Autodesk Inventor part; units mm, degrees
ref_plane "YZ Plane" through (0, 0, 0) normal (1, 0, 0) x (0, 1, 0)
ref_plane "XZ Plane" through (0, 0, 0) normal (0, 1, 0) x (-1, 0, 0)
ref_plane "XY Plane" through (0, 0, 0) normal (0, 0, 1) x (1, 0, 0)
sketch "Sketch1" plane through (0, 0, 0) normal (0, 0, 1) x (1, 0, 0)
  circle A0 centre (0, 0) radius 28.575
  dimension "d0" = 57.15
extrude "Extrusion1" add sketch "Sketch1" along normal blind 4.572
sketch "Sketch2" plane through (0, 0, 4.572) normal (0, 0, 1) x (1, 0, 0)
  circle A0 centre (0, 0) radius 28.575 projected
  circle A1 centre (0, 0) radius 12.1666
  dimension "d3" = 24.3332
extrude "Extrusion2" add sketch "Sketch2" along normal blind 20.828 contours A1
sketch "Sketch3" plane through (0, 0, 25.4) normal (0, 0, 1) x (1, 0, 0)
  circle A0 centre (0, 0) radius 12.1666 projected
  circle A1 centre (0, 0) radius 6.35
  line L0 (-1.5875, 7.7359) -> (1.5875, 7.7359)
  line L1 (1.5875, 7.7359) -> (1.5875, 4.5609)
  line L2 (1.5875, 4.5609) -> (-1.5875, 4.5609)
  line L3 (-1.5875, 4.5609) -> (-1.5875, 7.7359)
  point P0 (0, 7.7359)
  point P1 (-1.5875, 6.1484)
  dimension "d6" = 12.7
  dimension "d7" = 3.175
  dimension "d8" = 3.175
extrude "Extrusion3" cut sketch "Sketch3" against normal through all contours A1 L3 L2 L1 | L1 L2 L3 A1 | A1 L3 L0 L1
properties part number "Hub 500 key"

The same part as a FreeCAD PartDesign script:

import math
import FreeCAD as App
import Part
import Sketcher
from FreeCAD import Vector
Q = App.Units.Quantity

doc = App.newDocument("Part")
params = doc.addObject("Spreadsheet::Sheet", "Params")
for row, (alias, value) in enumerate([
    ("sketch1_diameter", "2.25 in"),
    ("pad1_length", "0.18 in"),
    ("sketch2_diameter", "0.958 in"),
    ("pad2_length", "0.82 in"),
    ("sketch3_radius", "0.25 in"),
    ("sketch3_width", "0.125 in"),
    ("sketch3_height", "0.0625 in"),
], start=1):
    params.set(f"A{row}", alias)
    params.set(f"B{row}", "=" + value)
    params.setAlias(f"B{row}", alias)

body = doc.addObject("PartDesign::Body", "Body")

# Sketch on XY plane
sketch1 = doc.addObject("Sketcher::SketchObject", "Sketch")
body.addObject(sketch1)
sketch1.AttachmentSupport = (doc.XY_Plane, [""])
sketch1.MapMode = "FlatFace"
sketch1.addGeometry(Part.Circle(Vector(0, 0, 0), Vector(0, 0, 1), 28.575), False)
sketch1.addConstraint([
    Sketcher.Constraint("Coincident", 0, 3, -1, 1),
    Sketcher.Constraint("Diameter", 0, Q("2.25 in")),
])
sketch1.setExpression("Constraints[1]", "Params.sketch1_diameter")
pad1 = doc.addObject("PartDesign::Pad", "Pad")
body.addObject(pad1)
pad1.Profile = sketch1
pad1.setExpression("Length", "Params.pad1_length")

# Sketch on XY plane
sketch2 = doc.addObject("Sketcher::SketchObject", "Sketch001")
body.addObject(sketch2)
sketch2.AttachmentSupport = (doc.XY_Plane, [""])
sketch2.MapMode = "FlatFace"
sketch2.AttachmentOffset = App.Placement(Vector(0, 0, 0.18 * 25.4), App.Rotation())
sketch2.addGeometry(Part.Circle(Vector(0, 0, 0), Vector(0, 0, 1), 12.1666), False)
sketch2.addConstraint([
    Sketcher.Constraint("Coincident", 0, 3, -1, 1),
    Sketcher.Constraint("Diameter", 0, Q("0.958 in")),
])
sketch2.setExpression("Constraints[1]", "Params.sketch2_diameter")
pad2 = doc.addObject("PartDesign::Pad", "Pad001")
body.addObject(pad2)
pad2.Profile = sketch2
pad2.setExpression("Length", "Params.pad2_length")

# Sketch on XY plane
sketch3 = doc.addObject("Sketcher::SketchObject", "Sketch002")
body.addObject(sketch3)
sketch3.AttachmentSupport = (doc.XY_Plane, [""])
sketch3.MapMode = "FlatFace"
sketch3.AttachmentOffset = App.Placement(Vector(0, 0, 1 * 25.4), App.Rotation())
sketch3.addGeometry([
    Part.ArcOfCircle(Part.Circle(Vector(0, 0, 0), Vector(0, 0, 1), 6.35), math.radians(104.477512), math.radians(435.522488)),
    Part.LineSegment(Vector(1.5875, 6.148361, 0), Vector(1.5875, 7.7359, 0)),
    Part.LineSegment(Vector(1.5875, 7.7359, 0), Vector(-1.5875, 7.7359, 0)),
    Part.LineSegment(Vector(-1.5875, 7.7359, 0), Vector(-1.5875, 6.148361, 0)),
], False)
sketch3.addConstraint([
    Sketcher.Constraint("Coincident", 0, 2, 1, 1),
    Sketcher.Constraint("Coincident", 1, 2, 2, 1),
    Sketcher.Constraint("Coincident", 2, 2, 3, 1),
    Sketcher.Constraint("Coincident", 3, 2, 0, 1),
    Sketcher.Constraint("Vertical", 1),
    Sketcher.Constraint("Horizontal", 2),
    Sketcher.Constraint("Vertical", 3),
    Sketcher.Constraint("Coincident", 0, 3, -1, 1),
    Sketcher.Constraint("Horizontal", 0, 2, 3, 2),
    Sketcher.Constraint("Radius", 0, Q("0.25 in")),
    Sketcher.Constraint("DistanceX", 2, 2, 2, 1, Q("0.125 in")),
    Sketcher.Constraint("DistanceY", 1, 1, 1, 2, Q("0.0625 in")),
])
sketch3.setExpression("Constraints[9]", "Params.sketch3_radius")
sketch3.setExpression("Constraints[10]", "Params.sketch3_width")
sketch3.setExpression("Constraints[11]", "Params.sketch3_height")
pocket1 = doc.addObject("PartDesign::Pocket", "Pocket")
body.addObject(pocket1)
pocket1.Profile = sketch3
pocket1.Type = "ThroughAll"

doc.recompute()
